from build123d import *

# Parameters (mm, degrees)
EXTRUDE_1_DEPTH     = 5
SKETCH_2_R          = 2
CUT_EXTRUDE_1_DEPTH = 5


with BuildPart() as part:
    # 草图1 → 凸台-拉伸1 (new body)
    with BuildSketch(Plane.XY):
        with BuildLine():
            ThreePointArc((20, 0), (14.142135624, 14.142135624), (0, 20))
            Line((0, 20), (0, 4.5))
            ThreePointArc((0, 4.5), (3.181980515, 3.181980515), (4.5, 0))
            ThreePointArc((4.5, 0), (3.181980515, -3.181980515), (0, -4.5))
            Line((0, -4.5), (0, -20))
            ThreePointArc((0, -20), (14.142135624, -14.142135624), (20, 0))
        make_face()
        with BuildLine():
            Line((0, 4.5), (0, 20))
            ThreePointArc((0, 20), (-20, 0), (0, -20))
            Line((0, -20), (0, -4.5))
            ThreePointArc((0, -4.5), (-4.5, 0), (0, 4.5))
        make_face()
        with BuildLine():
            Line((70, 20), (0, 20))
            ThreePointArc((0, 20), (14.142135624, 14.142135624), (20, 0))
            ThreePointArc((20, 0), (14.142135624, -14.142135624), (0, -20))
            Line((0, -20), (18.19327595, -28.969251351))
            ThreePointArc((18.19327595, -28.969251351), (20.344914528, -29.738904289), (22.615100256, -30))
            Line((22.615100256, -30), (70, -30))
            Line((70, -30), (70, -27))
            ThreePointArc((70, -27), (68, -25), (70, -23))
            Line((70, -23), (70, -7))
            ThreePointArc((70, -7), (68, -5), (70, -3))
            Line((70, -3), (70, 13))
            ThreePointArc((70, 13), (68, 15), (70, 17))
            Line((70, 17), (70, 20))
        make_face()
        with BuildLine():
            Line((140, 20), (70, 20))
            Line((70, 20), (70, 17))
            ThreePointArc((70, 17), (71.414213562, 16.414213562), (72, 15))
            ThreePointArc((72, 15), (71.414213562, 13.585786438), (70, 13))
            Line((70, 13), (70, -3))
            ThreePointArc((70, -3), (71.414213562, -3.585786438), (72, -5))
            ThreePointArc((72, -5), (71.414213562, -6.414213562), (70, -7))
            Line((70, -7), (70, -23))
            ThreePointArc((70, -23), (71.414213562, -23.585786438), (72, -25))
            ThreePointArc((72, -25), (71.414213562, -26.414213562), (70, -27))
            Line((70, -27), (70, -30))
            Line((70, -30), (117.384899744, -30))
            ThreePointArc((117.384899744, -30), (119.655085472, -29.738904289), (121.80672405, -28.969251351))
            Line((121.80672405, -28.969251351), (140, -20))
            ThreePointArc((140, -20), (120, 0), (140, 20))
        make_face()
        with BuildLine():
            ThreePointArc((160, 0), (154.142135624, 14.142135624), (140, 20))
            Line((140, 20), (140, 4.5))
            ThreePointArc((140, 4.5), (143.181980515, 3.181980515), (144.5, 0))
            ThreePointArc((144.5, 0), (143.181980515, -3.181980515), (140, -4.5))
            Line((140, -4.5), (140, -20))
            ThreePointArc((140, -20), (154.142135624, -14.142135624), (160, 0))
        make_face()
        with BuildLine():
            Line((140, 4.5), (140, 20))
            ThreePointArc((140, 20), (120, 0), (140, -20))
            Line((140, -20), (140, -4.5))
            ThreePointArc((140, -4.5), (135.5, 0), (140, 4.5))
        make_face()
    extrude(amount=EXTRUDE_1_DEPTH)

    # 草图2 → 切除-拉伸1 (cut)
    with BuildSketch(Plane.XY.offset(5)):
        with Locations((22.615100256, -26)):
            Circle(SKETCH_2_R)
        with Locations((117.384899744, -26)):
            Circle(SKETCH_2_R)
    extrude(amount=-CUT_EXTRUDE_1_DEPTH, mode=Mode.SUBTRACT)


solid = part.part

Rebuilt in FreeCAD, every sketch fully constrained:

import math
import FreeCAD as App
import Part
import Sketcher
Q = App.Units.Quantity

doc = App.newDocument("Part")
params = doc.addObject("Spreadsheet::Sheet", "Params")
for row, (alias, value) in enumerate([
    ("sketch1_radius", "20 mm"),
    ("sketch1_radius2", "10 mm"),
    ("sketch1_radius3", "2 mm"),
    ("sketch1_radius4", "4.5 mm"),
    ("sketch1_width", "140 mm"),
    ("pad1_length", "5 mm"),
    ("sketch2_diameter", "4 mm"),
    ("pocket1_length", "5 mm"),
], start=1):
    params.set(f"A{row}", alias)
    params.set(f"B{row}", "=" + value)
    params.setAlias(f"B{row}", alias)

body = doc.addObject("PartDesign::Body", "Body")

# Sketch on XY plane
sketch1 = body.newObject("Sketcher::SketchObject", "Sketch")
sketch1.AttachmentSupport = (doc.getObject("XY_Plane"), [""])
sketch1.MapMode = "FlatFace"
sketch1.addGeometry([
    Part.LineSegment(App.Vector(121.8, -29, 0), App.Vector(140, -20, 0)),  # 0
    Part.ArcOfCircle(Part.Circle(App.Vector(140, 0, 0), App.Vector(0, 0, 1), 20), math.radians(-90), math.radians(0)),  # 1
    Part.ArcOfCircle(Part.Circle(App.Vector(140, 0, 0), App.Vector(0, 0, 1), 20), math.radians(0), math.radians(90)),  # 2
    Part.LineSegment(App.Vector(140, 20, 0), App.Vector(0, 20, 0)),  # 3
    Part.ArcOfCircle(Part.Circle(App.Vector(0, 0, 0), App.Vector(0, 0, 1), 20), math.radians(90), math.radians(270)),  # 4
    Part.LineSegment(App.Vector(0, -20, 0), App.Vector(18.2, -29, 0)),  # 5
    Part.ArcOfCircle(Part.Circle(App.Vector(22.6, -20, 0), App.Vector(0, 0, 1), 10), math.radians(-116), math.radians(-90)),  # 6
    Part.LineSegment(App.Vector(22.6, -30, 0), App.Vector(117.4, -30, 0)),  # 7
    Part.ArcOfCircle(Part.Circle(App.Vector(117.4, -20, 0), App.Vector(0, 0, 1), 10), math.radians(-90), math.radians(-64)),  # 8
    Part.ArcOfCircle(Part.Circle(App.Vector(70, -25, 0), App.Vector(0, 0, 1), 2), math.radians(90), math.radians(270)),  # 9
    Part.ArcOfCircle(Part.Circle(App.Vector(70, -25, 0), App.Vector(0, 0, 1), 2), math.radians(0), math.radians(90)),  # 10
    Part.ArcOfCircle(Part.Circle(App.Vector(70, -25, 0), App.Vector(0, 0, 1), 2), math.radians(-90), math.radians(0)),  # 11
    Part.ArcOfCircle(Part.Circle(App.Vector(70, -5, 0), App.Vector(0, 0, 1), 2), math.radians(90), math.radians(270)),  # 12
    Part.ArcOfCircle(Part.Circle(App.Vector(70, -5, 0), App.Vector(0, 0, 1), 2), math.radians(0), math.radians(90)),  # 13
    Part.ArcOfCircle(Part.Circle(App.Vector(70, -5, 0), App.Vector(0, 0, 1), 2), math.radians(-90), math.radians(0)),  # 14
    Part.ArcOfCircle(Part.Circle(App.Vector(0, 0, 0), App.Vector(0, 0, 1), 4.5), math.radians(-90), math.radians(0)),  # 15
    Part.ArcOfCircle(Part.Circle(App.Vector(0, 0, 0), App.Vector(0, 0, 1), 4.5), math.radians(90), math.radians(270)),  # 16
    Part.ArcOfCircle(Part.Circle(App.Vector(0, 0, 0), App.Vector(0, 0, 1), 4.5), math.radians(0), math.radians(90)),  # 17
    Part.ArcOfCircle(Part.Circle(App.Vector(70, 15, 0), App.Vector(0, 0, 1), 2), math.radians(90), math.radians(270)),  # 18
    Part.ArcOfCircle(Part.Circle(App.Vector(70, 15, 0), App.Vector(0, 0, 1), 2), math.radians(0), math.radians(90)),  # 19
    Part.ArcOfCircle(Part.Circle(App.Vector(70, 15, 0), App.Vector(0, 0, 1), 2), math.radians(-90), math.radians(0)),  # 20
    Part.ArcOfCircle(Part.Circle(App.Vector(140, 0, 0), App.Vector(0, 0, 1), 4.5), math.radians(90), math.radians(270)),  # 21
    Part.ArcOfCircle(Part.Circle(App.Vector(140, 0, 0), App.Vector(0, 0, 1), 4.5), math.radians(0), math.radians(90)),  # 22
    Part.ArcOfCircle(Part.Circle(App.Vector(140, 0, 0), App.Vector(0, 0, 1), 4.5), math.radians(-90), math.radians(0)),  # 23
], False)
sketch1.addConstraint([
    Sketcher.Constraint("Coincident", 0, 2, 1, 1),
    Sketcher.Constraint("Tangent", 1, 2, 2, 1),
    Sketcher.Constraint("Tangent", 2, 2, 3, 1),
    Sketcher.Constraint("Tangent", 3, 2, 4, 1),
    Sketcher.Constraint("Coincident", 4, 2, 5, 1),
    Sketcher.Constraint("Tangent", 5, 2, 6, 1),
    Sketcher.Constraint("Tangent", 6, 2, 7, 1),
    Sketcher.Constraint("Tangent", 7, 2, 8, 1),
    Sketcher.Constraint("Tangent", 8, 2, 0, 1),
    Sketcher.Constraint("Tangent", 9, 1, 10, 2),
    Sketcher.Constraint("Tangent", 10, 1, 11, 2),
    Sketcher.Constraint("Tangent", 11, 1, 9, 2),
    Sketcher.Constraint("Tangent", 12, 1, 13, 2),
    Sketcher.Constraint("Tangent", 13, 1, 14, 2),
    Sketcher.Constraint("Tangent", 14, 1, 12, 2),
    Sketcher.Constraint("Tangent", 15, 1, 16, 2),
    Sketcher.Constraint("Tangent", 16, 1, 17, 2),
    Sketcher.Constraint("Tangent", 17, 1, 15, 2),
    Sketcher.Constraint("Tangent", 18, 1, 19, 2),
    Sketcher.Constraint("Tangent", 19, 1, 20, 2),
    Sketcher.Constraint("Tangent", 20, 1, 18, 2),
    Sketcher.Constraint("Tangent", 21, 1, 22, 2),
    Sketcher.Constraint("Tangent", 22, 1, 23, 2),
    Sketcher.Constraint("Tangent", 23, 1, 21, 2),
    Sketcher.Constraint("Horizontal", 3),
    Sketcher.Constraint("Horizontal", 7),
    Sketcher.Constraint("Coincident", 4, 3, -1, 1),
    Sketcher.Constraint("Coincident", 15, 3, -1, 1),
    Sketcher.Constraint("Coincident", 21, 3, 1, 3),
    Sketcher.Constraint("Equal", 1, 2),
    Sketcher.Constraint("Equal", 2, 4),
    Sketcher.Constraint("Equal", 6, 8),
    Sketcher.Constraint("Equal", 11, 12),
    Sketcher.Constraint("Equal", 14, 18),
    Sketcher.Constraint("Equal", 17, 21),
    Sketcher.Constraint("PointOnObject", 1, 2, -1),
    Sketcher.Constraint("PointOnObject", 4, 2, -2),
    Sketcher.Constraint("PointOnObject", 15, 1, -2),
    Sketcher.Constraint("PointOnObject", 16, 1, -2),
    Sketcher.Constraint("PointOnObject", 17, 1, -1),
    Sketcher.Constraint("PointOnObject", 22, 1, -1),
    Sketcher.Constraint("Horizontal", 8, 3, 0, 2),
    Sketcher.Constraint("Horizontal", 5, 2, 8, 2),
    Sketcher.Constraint("Horizontal", 11, 3, 10, 1),
    Sketcher.Constraint("Horizontal", 14, 3, 13, 1),
    Sketcher.Constraint("Horizontal", 20, 3, 19, 1),
    Sketcher.Constraint("Vertical", 11, 3, 12, 3),
    Sketcher.Constraint("Vertical", 14, 3, 18, 3),
    Sketcher.Constraint("Vertical", 23, 3, 0, 2),
    Sketcher.Constraint("Vertical", 20, 3, 9, 1),
    Sketcher.Constraint("Vertical", 9, 1, 11, 1),
    Sketcher.Constraint("Vertical", 11, 1, 12, 1),
    Sketcher.Constraint("Vertical", 12, 1, 14, 1),
    Sketcher.Constraint("Vertical", 14, 1, 18, 1),
    Sketcher.Constraint("Vertical", 18, 1, 20, 1),
    Sketcher.Constraint("Vertical", 2, 2, 21, 1),
    Sketcher.Constraint("Vertical", 21, 1, 23, 1),
    Sketcher.Constraint("Radius", 1, Q("20 mm")),
    Sketcher.Constraint("Radius", 6, Q("10 mm")),
    Sketcher.Constraint("Radius", 9, Q("2 mm")),
    Sketcher.Constraint("Radius", 15, Q("4.5 mm")),
    Sketcher.Constraint("DistanceX", 3, 2, 3, 1, Q("140 mm")),
    Sketcher.Constraint("DistanceX", -1, 1, 9, 3, Q("70 mm")),
    Sketcher.Constraint("DistanceY", 9, 3, -1, 1, Q("25 mm")),
    Sketcher.Constraint("DistanceY", 12, 3, -1, 1, Q("5 mm")),
    Sketcher.Constraint("DistanceY", -1, 1, 18, 3, Q("15 mm")),
    Sketcher.Constraint("DistanceX", 7, 1, 7, 2, Q("94.769799 mm")),
])
sketch1.setExpression("Constraints[57]", "Params.sketch1_radius")
sketch1.setExpression("Constraints[58]", "Params.sketch1_radius2")
sketch1.setExpression("Constraints[59]", "Params.sketch1_radius3")
sketch1.setExpression("Constraints[60]", "Params.sketch1_radius4")
sketch1.setExpression("Constraints[61]", "Params.sketch1_width")
pad1 = body.newObject("PartDesign::Pad", "Pad")
pad1.Profile = sketch1
pad1.setExpression("Length", "Params.pad1_length")

# Sketch on XY plane
sketch2 = body.newObject("Sketcher::SketchObject", "Sketch001")
sketch2.AttachmentSupport = (doc.getObject("XY_Plane"), [""])
sketch2.MapMode = "FlatFace"
sketch2.AttachmentOffset = App.Placement(App.Vector(0, 0, 5), App.Rotation())
sketch2.addGeometry([
    Part.Circle(App.Vector(22.6, -26, 0), App.Vector(0, 0, 1), 2),
    Part.Circle(App.Vector(117.4, -26, 0), App.Vector(0, 0, 1), 2),
], False)
sketch2.addConstraint([
    Sketcher.Constraint("Equal", 0, 1),
    Sketcher.Constraint("Horizontal", 0, 3, 1, 3),
    Sketcher.Constraint("Diameter", 0, Q("4 mm")),
    Sketcher.Constraint("DistanceY", 0, 3, -1, 1, Q("26 mm")),
    Sketcher.Constraint("DistanceX", -1, 1, 0, 3, Q("22.6151 mm")),
    Sketcher.Constraint("DistanceX", -1, 1, 1, 3, Q("117.3849 mm")),
])
sketch2.setExpression("Constraints[2]", "Params.sketch2_diameter")
pocket1 = body.newObject("PartDesign::Pocket", "Pocket")
pocket1.Profile = sketch2
pocket1.setExpression("Length", "Params.pocket1_length")

doc.recompute()
